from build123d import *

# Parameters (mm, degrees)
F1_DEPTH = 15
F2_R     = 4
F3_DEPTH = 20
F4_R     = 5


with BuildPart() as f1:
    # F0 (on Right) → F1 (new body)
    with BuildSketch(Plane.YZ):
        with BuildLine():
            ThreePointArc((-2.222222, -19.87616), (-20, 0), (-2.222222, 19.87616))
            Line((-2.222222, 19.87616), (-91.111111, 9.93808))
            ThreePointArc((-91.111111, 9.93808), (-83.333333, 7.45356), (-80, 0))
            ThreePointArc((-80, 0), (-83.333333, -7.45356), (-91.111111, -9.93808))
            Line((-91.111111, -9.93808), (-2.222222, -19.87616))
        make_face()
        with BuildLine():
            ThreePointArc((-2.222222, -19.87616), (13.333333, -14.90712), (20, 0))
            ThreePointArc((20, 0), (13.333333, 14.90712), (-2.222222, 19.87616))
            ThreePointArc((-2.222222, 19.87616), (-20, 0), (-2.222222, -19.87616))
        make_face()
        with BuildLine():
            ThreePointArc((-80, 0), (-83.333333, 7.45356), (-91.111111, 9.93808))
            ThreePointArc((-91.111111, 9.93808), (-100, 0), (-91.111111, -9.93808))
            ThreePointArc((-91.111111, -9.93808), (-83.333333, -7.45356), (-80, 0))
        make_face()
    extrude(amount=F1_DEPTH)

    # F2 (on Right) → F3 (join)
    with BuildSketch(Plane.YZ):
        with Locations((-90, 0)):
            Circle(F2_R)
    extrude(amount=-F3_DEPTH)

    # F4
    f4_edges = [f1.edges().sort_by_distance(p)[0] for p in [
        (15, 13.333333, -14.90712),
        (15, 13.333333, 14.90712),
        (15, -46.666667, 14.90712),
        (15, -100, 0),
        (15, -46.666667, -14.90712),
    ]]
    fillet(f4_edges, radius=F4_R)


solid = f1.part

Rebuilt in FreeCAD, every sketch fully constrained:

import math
import FreeCAD as App
import Part
import Sketcher

V = App.Vector


def edges_at(feature, points):
    """Names of the edges that pass closest to the given points."""
    edges = feature.Shape.Edges
    near = lambda p: min(range(len(edges)), key=lambda i: edges[i].distToShape(Part.Vertex(*p))[0])
    return sorted({f"Edge{near(p) + 1}" for p in points})

doc = App.newDocument("Part")
body = doc.addObject("PartDesign::Body", "Body")

# Sketch on YZ plane
sketch1 = doc.addObject("Sketcher::SketchObject", "Sketch")
body.addObject(sketch1)
sketch1.AttachmentSupport = (doc.YZ_Plane, [""])
sketch1.MapMode = "FlatFace"
sketch1.addGeometry([
    Part.LineSegment(V(-2.222222, 19.87616, 0), V(-91.111111, 9.93808, 0)),  # 0
    Part.ArcOfCircle(Part.Circle(V(-90, 0, 0), V(0, 0, 1), 10), math.radians(96.37937), math.radians(263.62063)),  # 1
    Part.LineSegment(V(-91.111111, -9.93808, 0), V(-2.222222, -19.87616, 0)),  # 2
    Part.ArcOfCircle(Part.Circle(V(0, 0, 0), V(0, 0, 1), 20), math.radians(-96.379368), math.radians(-0.000001)),  # 3
    Part.ArcOfCircle(Part.Circle(V(0, 0, 0), V(0, 0, 1), 20), math.radians(0.000001), math.radians(96.379368)),  # 4
], False)
sketch1.addConstraint([
    Sketcher.Constraint("Tangent", 0, 2, 1, 1),
    Sketcher.Constraint("Tangent", 1, 2, 2, 1),
    Sketcher.Constraint("Tangent", 2, 2, 3, 1),
    Sketcher.Constraint("Tangent", 3, 2, 4, 1),
    Sketcher.Constraint("Tangent", 4, 2, 0, 1),
    Sketcher.Constraint("Coincident", 3, 3, -1, 1),
    Sketcher.Constraint("Equal", 3, 4),
    Sketcher.Constraint("PointOnObject", 1, 3, -1),
    Sketcher.Constraint("PointOnObject", 3, 2, -1),
    Sketcher.Constraint("Radius", 1, 10.0),
    Sketcher.Constraint("Radius", 3, 20.0),
    Sketcher.Constraint("DistanceX", 1, 3, -1, 1, 90.0),
])
pad1 = doc.addObject("PartDesign::Pad", "Pad")
body.addObject(pad1)
pad1.Profile = sketch1
pad1.Length = 15

# Sketch on YZ plane
sketch2 = doc.addObject("Sketcher::SketchObject", "Sketch001")
body.addObject(sketch2)
sketch2.AttachmentSupport = (doc.YZ_Plane, [""])
sketch2.MapMode = "FlatFace"
sketch2.addGeometry(Part.Circle(V(-90, 0, 0), V(0, 0, 1), 4), False)
sketch2.addConstraint([
    Sketcher.Constraint("PointOnObject", 0, 3, -1),
    Sketcher.Constraint("Diameter", 0, 8.0),
    Sketcher.Constraint("DistanceX", 0, 3, -1, 1, 90.0),
])
pad2 = doc.addObject("PartDesign::Pad", "Pad001")
body.addObject(pad2)
pad2.Profile = sketch2
pad2.Length = 20
pad2.Reversed = True
doc.recompute()

fillet = doc.addObject("PartDesign::Fillet", "Fillet")
body.addObject(fillet)
fillet.Base = (pad2, edges_at(pad2, [
    (15, 13.333, -14.907),
    (15, 13.333, 14.907),
    (15, -46.667, 14.907),
    (15, -100, 0),
    (15, -46.667, -14.907),
]))
fillet.Radius = 5

doc.recompute()
